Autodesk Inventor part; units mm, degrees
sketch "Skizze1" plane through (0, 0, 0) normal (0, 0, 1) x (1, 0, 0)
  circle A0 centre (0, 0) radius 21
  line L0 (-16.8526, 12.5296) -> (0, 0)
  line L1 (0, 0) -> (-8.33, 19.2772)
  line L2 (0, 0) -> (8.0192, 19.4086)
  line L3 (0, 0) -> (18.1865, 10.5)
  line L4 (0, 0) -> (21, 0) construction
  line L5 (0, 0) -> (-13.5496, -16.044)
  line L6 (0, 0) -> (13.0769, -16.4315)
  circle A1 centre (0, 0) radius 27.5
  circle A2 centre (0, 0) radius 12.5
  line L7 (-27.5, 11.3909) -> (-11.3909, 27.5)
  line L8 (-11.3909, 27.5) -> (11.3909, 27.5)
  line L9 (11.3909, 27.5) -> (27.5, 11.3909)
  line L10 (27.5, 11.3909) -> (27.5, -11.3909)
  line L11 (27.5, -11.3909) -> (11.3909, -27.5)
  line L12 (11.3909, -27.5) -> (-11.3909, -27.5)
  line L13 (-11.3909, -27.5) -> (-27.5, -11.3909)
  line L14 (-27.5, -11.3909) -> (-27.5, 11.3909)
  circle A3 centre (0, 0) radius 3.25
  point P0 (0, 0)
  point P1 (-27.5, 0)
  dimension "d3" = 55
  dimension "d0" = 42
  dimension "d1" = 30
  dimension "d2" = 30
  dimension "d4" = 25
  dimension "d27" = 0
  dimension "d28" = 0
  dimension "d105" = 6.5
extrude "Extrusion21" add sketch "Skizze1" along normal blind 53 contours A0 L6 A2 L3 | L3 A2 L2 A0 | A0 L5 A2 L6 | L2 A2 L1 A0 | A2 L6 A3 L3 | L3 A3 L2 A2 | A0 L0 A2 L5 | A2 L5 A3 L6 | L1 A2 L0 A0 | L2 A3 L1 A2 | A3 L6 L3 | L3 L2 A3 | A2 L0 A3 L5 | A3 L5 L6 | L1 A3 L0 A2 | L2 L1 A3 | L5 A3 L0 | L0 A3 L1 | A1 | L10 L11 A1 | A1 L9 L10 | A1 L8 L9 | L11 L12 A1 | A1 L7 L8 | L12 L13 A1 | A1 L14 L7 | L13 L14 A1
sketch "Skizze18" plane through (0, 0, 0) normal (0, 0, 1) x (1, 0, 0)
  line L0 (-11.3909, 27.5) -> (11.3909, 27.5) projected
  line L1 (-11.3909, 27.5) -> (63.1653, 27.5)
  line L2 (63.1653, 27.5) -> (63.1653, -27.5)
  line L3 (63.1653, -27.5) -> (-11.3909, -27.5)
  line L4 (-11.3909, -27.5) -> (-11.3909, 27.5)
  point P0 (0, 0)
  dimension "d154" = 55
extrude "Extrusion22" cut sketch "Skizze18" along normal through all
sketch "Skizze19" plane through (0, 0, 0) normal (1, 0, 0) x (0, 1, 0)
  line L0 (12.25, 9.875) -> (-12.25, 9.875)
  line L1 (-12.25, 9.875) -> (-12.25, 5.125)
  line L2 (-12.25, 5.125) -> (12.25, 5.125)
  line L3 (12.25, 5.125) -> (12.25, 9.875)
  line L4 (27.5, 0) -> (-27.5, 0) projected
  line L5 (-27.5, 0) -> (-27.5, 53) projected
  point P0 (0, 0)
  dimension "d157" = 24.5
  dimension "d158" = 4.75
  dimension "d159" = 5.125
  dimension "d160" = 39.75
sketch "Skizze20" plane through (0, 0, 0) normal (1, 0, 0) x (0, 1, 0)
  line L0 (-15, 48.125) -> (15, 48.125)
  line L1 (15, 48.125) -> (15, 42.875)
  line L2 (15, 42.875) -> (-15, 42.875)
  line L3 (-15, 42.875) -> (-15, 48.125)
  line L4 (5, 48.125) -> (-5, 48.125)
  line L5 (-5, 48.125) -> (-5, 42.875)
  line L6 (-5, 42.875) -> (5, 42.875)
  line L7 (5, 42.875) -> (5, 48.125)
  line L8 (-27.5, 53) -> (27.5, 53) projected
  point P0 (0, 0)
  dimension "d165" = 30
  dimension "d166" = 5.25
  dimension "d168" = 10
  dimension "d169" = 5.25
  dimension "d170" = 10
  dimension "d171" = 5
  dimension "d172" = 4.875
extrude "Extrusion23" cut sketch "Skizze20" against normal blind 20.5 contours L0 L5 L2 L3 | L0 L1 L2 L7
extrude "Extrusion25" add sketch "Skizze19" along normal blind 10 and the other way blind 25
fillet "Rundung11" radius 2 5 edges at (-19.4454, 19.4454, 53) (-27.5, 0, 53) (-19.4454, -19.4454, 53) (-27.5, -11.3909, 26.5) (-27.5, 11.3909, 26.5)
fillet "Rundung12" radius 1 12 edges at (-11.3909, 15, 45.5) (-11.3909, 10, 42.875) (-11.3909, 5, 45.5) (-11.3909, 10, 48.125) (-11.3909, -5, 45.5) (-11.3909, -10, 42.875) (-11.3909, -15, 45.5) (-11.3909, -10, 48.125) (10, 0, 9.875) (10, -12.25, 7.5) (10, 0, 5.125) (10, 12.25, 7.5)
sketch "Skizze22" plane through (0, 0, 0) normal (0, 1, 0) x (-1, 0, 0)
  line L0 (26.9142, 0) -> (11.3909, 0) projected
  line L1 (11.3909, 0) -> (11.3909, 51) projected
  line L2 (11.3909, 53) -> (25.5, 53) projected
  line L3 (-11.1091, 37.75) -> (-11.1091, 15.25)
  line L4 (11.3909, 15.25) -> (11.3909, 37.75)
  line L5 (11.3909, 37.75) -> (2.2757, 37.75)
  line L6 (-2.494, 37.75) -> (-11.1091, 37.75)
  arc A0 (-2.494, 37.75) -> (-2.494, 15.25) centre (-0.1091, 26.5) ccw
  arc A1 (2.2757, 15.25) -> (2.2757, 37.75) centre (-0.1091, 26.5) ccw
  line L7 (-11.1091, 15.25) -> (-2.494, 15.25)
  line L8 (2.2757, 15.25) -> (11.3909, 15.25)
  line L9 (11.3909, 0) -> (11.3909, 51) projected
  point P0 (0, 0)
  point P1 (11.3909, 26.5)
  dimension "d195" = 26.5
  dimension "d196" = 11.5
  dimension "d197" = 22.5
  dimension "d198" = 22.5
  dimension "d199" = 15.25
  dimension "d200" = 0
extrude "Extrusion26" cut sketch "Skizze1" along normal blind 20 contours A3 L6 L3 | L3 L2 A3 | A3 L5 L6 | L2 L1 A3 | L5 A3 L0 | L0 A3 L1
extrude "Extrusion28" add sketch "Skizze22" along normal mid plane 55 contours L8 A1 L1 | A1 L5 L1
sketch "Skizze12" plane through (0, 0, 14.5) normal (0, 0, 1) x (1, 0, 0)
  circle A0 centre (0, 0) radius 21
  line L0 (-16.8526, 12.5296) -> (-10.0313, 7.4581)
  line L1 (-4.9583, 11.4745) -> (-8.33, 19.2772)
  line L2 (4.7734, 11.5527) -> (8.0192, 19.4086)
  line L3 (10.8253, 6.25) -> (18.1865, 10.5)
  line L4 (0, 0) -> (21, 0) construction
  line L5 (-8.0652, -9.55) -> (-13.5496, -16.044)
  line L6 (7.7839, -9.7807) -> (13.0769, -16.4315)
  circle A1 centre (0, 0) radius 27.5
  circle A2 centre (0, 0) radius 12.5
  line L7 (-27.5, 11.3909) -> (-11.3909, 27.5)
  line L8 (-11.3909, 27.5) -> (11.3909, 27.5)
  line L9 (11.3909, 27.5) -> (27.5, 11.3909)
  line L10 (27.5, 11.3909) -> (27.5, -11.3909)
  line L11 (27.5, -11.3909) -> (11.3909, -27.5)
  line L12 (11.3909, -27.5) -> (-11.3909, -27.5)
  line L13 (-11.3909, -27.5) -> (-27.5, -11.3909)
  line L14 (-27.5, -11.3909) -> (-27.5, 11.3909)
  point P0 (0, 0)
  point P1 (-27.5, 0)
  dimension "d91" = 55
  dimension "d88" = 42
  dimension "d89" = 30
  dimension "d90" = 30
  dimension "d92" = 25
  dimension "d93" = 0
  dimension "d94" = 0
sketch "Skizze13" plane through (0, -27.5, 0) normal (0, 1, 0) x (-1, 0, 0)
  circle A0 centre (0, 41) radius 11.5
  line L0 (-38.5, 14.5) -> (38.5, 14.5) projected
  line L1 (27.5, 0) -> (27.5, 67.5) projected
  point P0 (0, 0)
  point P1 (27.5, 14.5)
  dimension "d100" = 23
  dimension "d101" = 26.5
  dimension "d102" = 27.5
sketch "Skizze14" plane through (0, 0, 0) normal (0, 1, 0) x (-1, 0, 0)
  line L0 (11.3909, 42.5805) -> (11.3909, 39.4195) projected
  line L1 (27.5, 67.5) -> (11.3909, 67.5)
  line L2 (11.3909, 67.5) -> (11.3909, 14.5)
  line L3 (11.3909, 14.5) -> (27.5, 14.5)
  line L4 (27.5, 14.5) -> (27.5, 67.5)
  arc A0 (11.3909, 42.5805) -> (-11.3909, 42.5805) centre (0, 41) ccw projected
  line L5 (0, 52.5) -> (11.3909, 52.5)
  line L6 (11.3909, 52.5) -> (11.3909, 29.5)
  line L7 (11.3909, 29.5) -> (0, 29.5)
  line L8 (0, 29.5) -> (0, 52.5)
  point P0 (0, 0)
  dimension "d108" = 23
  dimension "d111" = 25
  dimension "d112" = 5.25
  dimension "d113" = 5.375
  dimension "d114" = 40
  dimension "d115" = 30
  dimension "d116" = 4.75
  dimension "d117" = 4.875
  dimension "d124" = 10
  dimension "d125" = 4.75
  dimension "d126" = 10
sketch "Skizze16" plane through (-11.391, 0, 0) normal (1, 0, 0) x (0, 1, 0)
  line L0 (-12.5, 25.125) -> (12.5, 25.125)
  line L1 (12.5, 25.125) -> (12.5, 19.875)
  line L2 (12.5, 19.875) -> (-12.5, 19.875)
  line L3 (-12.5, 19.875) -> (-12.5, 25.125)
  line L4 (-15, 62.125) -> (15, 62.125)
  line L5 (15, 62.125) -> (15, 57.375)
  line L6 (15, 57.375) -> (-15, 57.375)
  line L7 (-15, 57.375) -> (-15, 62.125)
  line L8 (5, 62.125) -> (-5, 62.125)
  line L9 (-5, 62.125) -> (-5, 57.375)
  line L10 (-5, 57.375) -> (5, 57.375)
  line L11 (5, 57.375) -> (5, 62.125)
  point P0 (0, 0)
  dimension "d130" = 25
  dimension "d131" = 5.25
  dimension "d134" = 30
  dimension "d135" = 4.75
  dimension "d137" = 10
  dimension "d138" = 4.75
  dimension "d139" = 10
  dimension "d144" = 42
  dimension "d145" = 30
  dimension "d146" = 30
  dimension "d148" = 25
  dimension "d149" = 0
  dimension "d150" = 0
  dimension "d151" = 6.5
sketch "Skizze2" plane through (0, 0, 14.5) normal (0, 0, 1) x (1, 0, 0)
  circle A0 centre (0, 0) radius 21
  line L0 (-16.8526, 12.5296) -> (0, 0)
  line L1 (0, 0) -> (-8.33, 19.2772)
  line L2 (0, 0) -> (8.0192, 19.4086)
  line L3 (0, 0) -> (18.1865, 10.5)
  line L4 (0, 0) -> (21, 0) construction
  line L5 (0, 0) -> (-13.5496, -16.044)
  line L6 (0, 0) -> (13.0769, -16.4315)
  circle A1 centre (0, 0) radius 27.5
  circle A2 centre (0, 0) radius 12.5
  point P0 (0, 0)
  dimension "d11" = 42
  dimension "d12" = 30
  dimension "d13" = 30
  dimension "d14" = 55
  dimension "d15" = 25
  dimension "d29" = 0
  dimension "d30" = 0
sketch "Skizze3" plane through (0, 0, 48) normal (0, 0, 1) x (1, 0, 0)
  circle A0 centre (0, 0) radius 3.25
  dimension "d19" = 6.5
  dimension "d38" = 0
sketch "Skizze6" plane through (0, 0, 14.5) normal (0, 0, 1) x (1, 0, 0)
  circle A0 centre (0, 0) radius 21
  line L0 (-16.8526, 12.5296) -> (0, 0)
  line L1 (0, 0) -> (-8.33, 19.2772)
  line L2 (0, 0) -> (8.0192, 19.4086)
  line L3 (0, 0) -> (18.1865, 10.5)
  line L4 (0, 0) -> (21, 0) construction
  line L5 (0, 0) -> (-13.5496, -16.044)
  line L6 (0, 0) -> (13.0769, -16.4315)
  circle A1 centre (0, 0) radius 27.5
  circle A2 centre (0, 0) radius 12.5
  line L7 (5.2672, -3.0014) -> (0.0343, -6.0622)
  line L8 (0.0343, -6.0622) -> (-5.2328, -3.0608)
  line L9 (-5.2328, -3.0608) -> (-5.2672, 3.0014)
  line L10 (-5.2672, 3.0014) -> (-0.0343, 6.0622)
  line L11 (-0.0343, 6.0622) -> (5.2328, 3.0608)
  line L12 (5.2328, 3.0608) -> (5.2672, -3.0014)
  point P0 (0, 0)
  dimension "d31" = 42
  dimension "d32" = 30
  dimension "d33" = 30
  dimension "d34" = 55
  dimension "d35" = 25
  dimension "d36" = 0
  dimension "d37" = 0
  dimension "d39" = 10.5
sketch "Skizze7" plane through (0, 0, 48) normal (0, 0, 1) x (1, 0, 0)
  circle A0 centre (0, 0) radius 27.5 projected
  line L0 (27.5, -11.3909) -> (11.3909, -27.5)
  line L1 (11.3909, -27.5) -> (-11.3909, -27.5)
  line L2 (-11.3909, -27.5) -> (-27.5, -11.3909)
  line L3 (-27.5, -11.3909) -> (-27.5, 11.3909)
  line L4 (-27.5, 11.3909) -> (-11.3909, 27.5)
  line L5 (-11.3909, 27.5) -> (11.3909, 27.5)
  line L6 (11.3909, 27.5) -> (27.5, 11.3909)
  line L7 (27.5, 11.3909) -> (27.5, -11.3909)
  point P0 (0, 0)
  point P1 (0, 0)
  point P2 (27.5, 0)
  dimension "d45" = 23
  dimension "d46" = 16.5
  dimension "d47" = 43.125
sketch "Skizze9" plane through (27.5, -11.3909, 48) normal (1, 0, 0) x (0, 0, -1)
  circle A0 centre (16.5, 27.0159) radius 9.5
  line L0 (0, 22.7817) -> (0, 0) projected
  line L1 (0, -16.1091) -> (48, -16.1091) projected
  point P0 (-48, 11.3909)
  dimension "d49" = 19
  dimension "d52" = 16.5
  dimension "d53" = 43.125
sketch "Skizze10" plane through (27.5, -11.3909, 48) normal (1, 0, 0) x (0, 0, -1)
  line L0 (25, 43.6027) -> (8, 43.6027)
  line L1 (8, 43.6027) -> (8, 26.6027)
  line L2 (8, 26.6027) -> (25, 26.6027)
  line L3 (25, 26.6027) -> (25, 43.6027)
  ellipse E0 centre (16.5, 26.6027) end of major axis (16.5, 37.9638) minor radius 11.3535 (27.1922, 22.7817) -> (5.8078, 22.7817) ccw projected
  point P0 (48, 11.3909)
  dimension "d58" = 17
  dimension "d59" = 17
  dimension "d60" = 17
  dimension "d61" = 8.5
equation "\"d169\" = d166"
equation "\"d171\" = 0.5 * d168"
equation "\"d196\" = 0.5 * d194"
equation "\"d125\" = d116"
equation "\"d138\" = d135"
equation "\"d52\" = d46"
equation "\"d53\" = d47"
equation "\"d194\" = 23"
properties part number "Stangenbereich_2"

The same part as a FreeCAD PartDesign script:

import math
import FreeCAD as App
import Part
import Sketcher
from FreeCAD import Vector
Q = App.Units.Quantity


def edges_at(feature, points):
    """Names of the edges that pass closest to the given points."""
    edges = feature.Shape.Edges
    near = lambda p: min(range(len(edges)), key=lambda i: edges[i].distToShape(Part.Vertex(*p))[0])
    return sorted({f"Edge{near(p) + 1}" for p in points})


def add_polygon(sketch, points):
    """Adds a closed chain of lines whose ends are joined by coincident constraints."""
    first, n = sketch.GeometryCount, len(points)
    for a, b in zip(points, points[1:] + points[:1]):
        sketch.addGeometry(Part.LineSegment(App.Vector(*a, 0), App.Vector(*b, 0)), False)
    for i in range(n):
        sketch.addConstraint(Sketcher.Constraint("Coincident", first + i, 2, first + (i + 1) % n, 1))

doc = App.newDocument("Part")
params = doc.addObject("Spreadsheet::Sheet", "Params")
for row, (alias, value) in enumerate([
    ("pad1_length", "53 mm"),
    ("sketch2_height", "55 mm"),
    ("sketch3_width", "10 mm"),
    ("sketch3_height", "5.25 mm"),
    ("pocket2_length", "20.5 mm"),
    ("sketch4_width", "24.5 mm"),
    ("sketch4_height", "4.75 mm"),
    ("pad2_length", "10 mm"),
    ("pad2_length2", "25 mm"),
    ("fillet_radius", "2 mm"),
    ("fillet2_radius", "1 mm"),
    ("sketch5_diameter", "6.5 mm"),
    ("pocket3_length", "20 mm"),
    ("sketch6_radius", "11.5 mm"),
    ("pad3_length", "55 mm"),
], start=1):
    params.set(f"A{row}", alias)
    params.set(f"B{row}", "=" + value)
    params.setAlias(f"B{row}", alias)

body = doc.addObject("PartDesign::Body", "Body")

# Sketch on XY plane
sketch1 = body.newObject("Sketcher::SketchObject", "Sketch")
sketch1.AttachmentSupport = (doc.getObject("XY_Plane"), [""])
sketch1.MapMode = "FlatFace"
add_polygon(sketch1, [(27.5, -11.3909), (27.5, 11.3909), (11.3909, 27.5), (-11.3909, 27.5), (-27.5, 11.3909), (-27.5, -11.3909), (-11.3909, -27.5), (11.3909, -27.5)])  # lines 0-7
sketch1.addConstraint(Sketcher.Constraint("Vertical", 0))
sketch1.addConstraint(Sketcher.Constraint("Horizontal", 2))
sketch1.addConstraint(Sketcher.Constraint("Vertical", 4))
sketch1.addConstraint(Sketcher.Constraint("Horizontal", 6))
sketch1.addConstraint(Sketcher.Constraint("Symmetric", 0, 2, 4, 2, -1, 1))
sketch1.addConstraint(Sketcher.Constraint("Symmetric", 1, 2, 5, 2, -1, 1))
sketch1.addConstraint(Sketcher.Constraint("Perpendicular", 1, 3))
sketch1.addConstraint(Sketcher.Constraint("Perpendicular", 5, 7))
sketch1.addConstraint(Sketcher.Constraint("Horizontal", 0, 2, 3, 2))
sketch1.addConstraint(Sketcher.Constraint("Horizontal", 4, 2, 7, 2))
sketch1.addConstraint(Sketcher.Constraint("Vertical", 2, 2, 5, 2))
sketch1.addConstraint(Sketcher.Constraint("Equal", 6, 0))
sketch1.addConstraint(Sketcher.Constraint("DistanceX", 3, 2, 0, 2, Q("55 mm")))
sketch1.addConstraint(Sketcher.Constraint("DistanceX", 2, 2, 2, 1, Q("22.7818 mm")))
pad1 = body.newObject("PartDesign::Pad", "Pad")
pad1.Profile = sketch1
pad1.setExpression("Length", "Params.pad1_length")

# Sketch on XY plane
sketch2 = body.newObject("Sketcher::SketchObject", "Sketch001")
sketch2.AttachmentSupport = (doc.getObject("XY_Plane"), [""])
sketch2.MapMode = "FlatFace"
add_polygon(sketch2, [(63.1653, 27.5), (-11.3909, 27.5), (-11.3909, -27.5), (63.1653, -27.5)])  # lines 0-3
sketch2.addConstraint(Sketcher.Constraint("Horizontal", 0))
sketch2.addConstraint(Sketcher.Constraint("Vertical", 1))
sketch2.addConstraint(Sketcher.Constraint("Horizontal", 2))
sketch2.addConstraint(Sketcher.Constraint("Vertical", 3))
sketch2.addConstraint(Sketcher.Constraint("DistanceY", 1, 2, 1, 1, Q("55 mm")))
sketch2.addConstraint(Sketcher.Constraint("DistanceY", -1, 1, 0, 2, Q("27.5 mm")))
sketch2.addConstraint(Sketcher.Constraint("DistanceX", 0, 2, 0, 1, Q("74.5562 mm")))
sketch2.addConstraint(Sketcher.Constraint("DistanceX", 0, 2, -1, 1, Q("11.391 mm")))
sketch2.setExpression("Constraints[8]", "Params.sketch2_height")
pocket1 = body.newObject("PartDesign::Pocket", "Pocket")
pocket1.Profile = sketch2
pocket1.Type = "ThroughAll"
pocket1.Reversed = True

# Sketch on YZ plane
sketch3 = body.newObject("Sketcher::SketchObject", "Sketch002")
sketch3.AttachmentSupport = (doc.getObject("YZ_Plane"), [""])
sketch3.MapMode = "FlatFace"
add_polygon(sketch3, [(-5, 48.125), (-15, 48.125), (-15, 42.875), (-5, 42.875)])  # lines 0-3
add_polygon(sketch3, [(15, 48.125), (5, 48.125), (5, 42.875), (15, 42.875)])  # lines 4-7
sketch3.addConstraint(Sketcher.Constraint("Horizontal", 0))
sketch3.addConstraint(Sketcher.Constraint("Vertical", 1))
sketch3.addConstraint(Sketcher.Constraint("Horizontal", 2))
sketch3.addConstraint(Sketcher.Constraint("Vertical", 3))
sketch3.addConstraint(Sketcher.Constraint("Horizontal", 4))
sketch3.addConstraint(Sketcher.Constraint("Vertical", 5))
sketch3.addConstraint(Sketcher.Constraint("Horizontal", 6))
sketch3.addConstraint(Sketcher.Constraint("Vertical", 7))
sketch3.addConstraint(Sketcher.Constraint("Symmetric", 3, 2, 4, 2, -2))
sketch3.addConstraint(Sketcher.Constraint("Symmetric", 1, 2, 6, 2, -2))
sketch3.addConstraint(Sketcher.Constraint("DistanceX", 0, 2, 0, 1, Q("10 mm")))
sketch3.addConstraint(Sketcher.Constraint("DistanceX", 2, 2, -1, 1, Q("5 mm")))
sketch3.addConstraint(Sketcher.Constraint("DistanceY", 1, 2, 1, 1, Q("5.25 mm")))
sketch3.addConstraint(Sketcher.Constraint("DistanceY", -1, 1, 0, 2, Q("48.125 mm")))
sketch3.setExpression("Constraints[18]", "Params.sketch3_width")
sketch3.setExpression("Constraints[20]", "Params.sketch3_height")
pocket2 = body.newObject("PartDesign::Pocket", "Pocket001")
pocket2.Profile = sketch3
pocket2.setExpression("Length", "Params.pocket2_length")

# Sketch on YZ plane
sketch4 = body.newObject("Sketcher::SketchObject", "Sketch003")
sketch4.AttachmentSupport = (doc.getObject("YZ_Plane"), [""])
sketch4.MapMode = "FlatFace"
add_polygon(sketch4, [(12.25, 5.125), (12.25, 9.875), (-12.25, 9.875), (-12.25, 5.125)])  # lines 0-3
sketch4.addConstraint(Sketcher.Constraint("Vertical", 0))
sketch4.addConstraint(Sketcher.Constraint("Horizontal", 1))
sketch4.addConstraint(Sketcher.Constraint("Vertical", 2))
sketch4.addConstraint(Sketcher.Constraint("Horizontal", 3))
sketch4.addConstraint(Sketcher.Constraint("DistanceX", 1, 2, 1, 1, Q("24.5 mm")))
sketch4.addConstraint(Sketcher.Constraint("DistanceY", 0, 1, 0, 2, Q("4.75 mm")))
sketch4.addConstraint(Sketcher.Constraint("DistanceY", -1, 1, 2, 2, Q("5.125 mm")))
sketch4.addConstraint(Sketcher.Constraint("DistanceX", -1, 1, 0, 2, Q("12.25 mm")))
sketch4.setExpression("Constraints[8]", "Params.sketch4_width")
sketch4.setExpression("Constraints[9]", "Params.sketch4_height")
pad2 = body.newObject("PartDesign::Pad", "Pad001")
pad2.Profile = sketch4
pad2.Type = "TwoLengths"
pad2.setExpression("Length", "Params.pad2_length")
pad2.setExpression("Length2", "Params.pad2_length2")
doc.recompute()

fillet = body.newObject("PartDesign::Fillet", "Fillet")
fillet.Base = (pad2, edges_at(pad2, [
    (-19.445, 19.445, 53),
    (-27.5, 0, 53),
    (-19.445, -19.445, 53),
    (-27.5, -11.391, 26.5),
    (-27.5, 11.391, 26.5),
]))
fillet.setExpression("Radius", "Params.fillet_radius")
doc.recompute()

fillet2 = body.newObject("PartDesign::Fillet", "Fillet001")
fillet2.Base = (fillet, edges_at(fillet, [
    (-11.391, 15, 45.5),
    (-11.391, 10, 42.875),
    (-11.391, 5, 45.5),
    (-11.391, 10, 48.125),
    (-11.391, -5, 45.5),
    (-11.391, -10, 42.875),
    (-11.391, -15, 45.5),
    (-11.391, -10, 48.125),
    (10, 0, 9.875),
    (10, -12.25, 7.5),
    (10, 0, 5.125),
    (10, 12.25, 7.5),
]))
fillet2.setExpression("Radius", "Params.fillet2_radius")

# Sketch on XY plane
sketch5 = body.newObject("Sketcher::SketchObject", "Sketch004")
sketch5.AttachmentSupport = (doc.getObject("XY_Plane"), [""])
sketch5.MapMode = "FlatFace"
sketch5.addGeometry(Part.Circle(Vector(0, 0, 0), Vector(0, 0, 1), 3.25), False)
sketch5.addConstraint(Sketcher.Constraint("Coincident", 0, 3, -1, 1))
sketch5.addConstraint(Sketcher.Constraint("Diameter", 0, Q("6.5 mm")))
sketch5.setExpression("Constraints[1]", "Params.sketch5_diameter")
pocket3 = body.newObject("PartDesign::Pocket", "Pocket002")
pocket3.Profile = sketch5
pocket3.setExpression("Length", "Params.pocket3_length")
pocket3.Reversed = True

# Sketch on XZ plane
sketch6 = body.newObject("Sketcher::SketchObject", "Sketch005")
sketch6.AttachmentSupport = (doc.getObject("XZ_Plane"), [""])
sketch6.MapMode = "FlatFace"
sketch6.addGeometry(Part.LineSegment(Vector(-2.2757, 15.25, 0), Vector(-11.3909, 15.25, 0)), False)
sketch6.addGeometry(Part.LineSegment(Vector(-11.3909, 15.25, 0), Vector(-11.3909, 26.5, 0)), False)
sketch6.addGeometry(Part.ArcOfCircle(Part.Circle(Vector(0.1091, 26.5, 0), Vector(0, 0, 1), 11.49999), math.radians(-179.999999), math.radians(-101.968512)), False)
sketch6.addGeometry(Part.ArcOfCircle(Part.Circle(Vector(0.1091, 26.5, 0), Vector(0, 0, 1), 11.49999), math.radians(101.968512), math.radians(180.000001)), False)
sketch6.addGeometry(Part.LineSegment(Vector(-11.3909, 26.5, 0), Vector(-11.3909, 37.75, 0)), False)
sketch6.addGeometry(Part.LineSegment(Vector(-11.3909, 37.75, 0), Vector(-2.2757, 37.75, 0)), False)
sketch6.addConstraint(Sketcher.Constraint("Coincident", 0, 2, 1, 1))
sketch6.addConstraint(Sketcher.Constraint("Tangent", 1, 2, 2, 1))
sketch6.addConstraint(Sketcher.Constraint("Coincident", 2, 2, 0, 1))
sketch6.addConstraint(Sketcher.Constraint("Tangent", 3, 2, 4, 1))
sketch6.addConstraint(Sketcher.Constraint("Coincident", 4, 2, 5, 1))
sketch6.addConstraint(Sketcher.Constraint("Coincident", 5, 2, 3, 1))
sketch6.addConstraint(Sketcher.Constraint("Horizontal", 0))
sketch6.addConstraint(Sketcher.Constraint("Vertical", 1))
sketch6.addConstraint(Sketcher.Constraint("Vertical", 4))
sketch6.addConstraint(Sketcher.Constraint("Horizontal", 5))
sketch6.addConstraint(Sketcher.Constraint("Coincident", 3, 3, 2, 3))
sketch6.addConstraint(Sketcher.Constraint("Equal", 2, 3))
sketch6.addConstraint(Sketcher.Constraint("Vertical", 2, 2, 5, 2))
sketch6.addConstraint(Sketcher.Constraint("Radius", 2, Q("11.5 mm")))
sketch6.addConstraint(Sketcher.Constraint("DistanceY", -1, 1, 2, 3, Q("26.5 mm")))
sketch6.addConstraint(Sketcher.Constraint("DistanceY", 0, 2, 4, 2, Q("22.5 mm")))
sketch6.addConstraint(Sketcher.Constraint("DistanceX", -1, 1, 2, 3, Q("0.109 mm")))
sketch6.setExpression("Constraints[13]", "Params.sketch6_radius")
pad3 = body.newObject("PartDesign::Pad", "Pad002")
pad3.Profile = sketch6
pad3.setExpression("Length", "Params.pad3_length")
pad3.Midplane = True

doc.recompute()
